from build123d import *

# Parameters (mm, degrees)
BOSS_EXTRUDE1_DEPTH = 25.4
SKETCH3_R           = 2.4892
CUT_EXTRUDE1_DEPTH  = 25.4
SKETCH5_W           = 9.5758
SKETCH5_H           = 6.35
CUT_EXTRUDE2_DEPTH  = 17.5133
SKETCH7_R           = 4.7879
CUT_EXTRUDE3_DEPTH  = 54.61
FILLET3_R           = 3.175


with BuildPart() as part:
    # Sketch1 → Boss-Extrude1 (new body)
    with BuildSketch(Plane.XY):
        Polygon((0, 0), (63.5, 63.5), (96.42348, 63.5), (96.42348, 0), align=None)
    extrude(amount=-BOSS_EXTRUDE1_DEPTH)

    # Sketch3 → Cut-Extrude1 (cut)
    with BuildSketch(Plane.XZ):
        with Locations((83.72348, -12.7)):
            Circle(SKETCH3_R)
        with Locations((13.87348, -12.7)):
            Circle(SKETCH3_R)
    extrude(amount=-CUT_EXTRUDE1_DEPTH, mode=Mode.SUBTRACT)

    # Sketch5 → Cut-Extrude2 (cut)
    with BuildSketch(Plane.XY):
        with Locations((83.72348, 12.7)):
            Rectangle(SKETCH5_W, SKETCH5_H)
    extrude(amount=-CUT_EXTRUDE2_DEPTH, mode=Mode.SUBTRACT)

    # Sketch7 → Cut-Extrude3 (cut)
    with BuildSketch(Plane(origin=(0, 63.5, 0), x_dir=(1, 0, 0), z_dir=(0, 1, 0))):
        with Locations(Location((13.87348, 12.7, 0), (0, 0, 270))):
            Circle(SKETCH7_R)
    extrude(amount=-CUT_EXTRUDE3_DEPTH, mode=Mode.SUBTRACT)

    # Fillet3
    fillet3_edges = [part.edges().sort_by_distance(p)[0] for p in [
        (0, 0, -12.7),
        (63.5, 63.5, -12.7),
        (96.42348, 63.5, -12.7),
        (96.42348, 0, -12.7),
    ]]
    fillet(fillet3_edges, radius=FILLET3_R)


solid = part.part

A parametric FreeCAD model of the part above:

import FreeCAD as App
import Part
import Sketcher
from FreeCAD import Vector
Q = App.Units.Quantity


def edges_at(feature, points):
    """Names of the edges that pass closest to the given points."""
    edges = feature.Shape.Edges
    near = lambda p: min(range(len(edges)), key=lambda i: edges[i].distToShape(Part.Vertex(*p))[0])
    return sorted({f"Edge{near(p) + 1}" for p in points})


def add_polygon(sketch, points):
    """Adds a closed chain of lines whose ends are joined by coincident constraints."""
    first, n = sketch.GeometryCount, len(points)
    for a, b in zip(points, points[1:] + points[:1]):
        sketch.addGeometry(Part.LineSegment(App.Vector(*a, 0), App.Vector(*b, 0)), False)
    for i in range(n):
        sketch.addConstraint(Sketcher.Constraint("Coincident", first + i, 2, first + (i + 1) % n, 1))

doc = App.newDocument("Part")
body = doc.addObject("PartDesign::Body", "Body")

sketch1 = doc.addObject("Sketcher::SketchObject", "Sketch")
body.addObject(sketch1)
sketch1.AttachmentSupport = (doc.XY_Plane, [""])
sketch1.MapMode = "FlatFace"
add_polygon(sketch1, [(63.5, 63.5), (0, 0), (96.42348, 0), (96.42348, 63.5)])
sketch1.addConstraint(Sketcher.Constraint("Horizontal", 1))
sketch1.addConstraint(Sketcher.Constraint("Vertical", 2))
sketch1.addConstraint(Sketcher.Constraint("Horizontal", 3))
sketch1.addConstraint(Sketcher.Constraint("Coincident", 0, 2, -1, 1))
sketch1.addConstraint(Sketcher.Constraint("DistanceY", 2, 1, 2, 2, Q("2.5 in")))
sketch1.addConstraint(Sketcher.Constraint("Angle", 0, Q("-135 deg")))
sketch1.addConstraint(Sketcher.Constraint("DistanceX", 1, 1, 1, 2, Q("3.7962 in")))
pad1 = doc.addObject("PartDesign::Pad", "Pad")
body.addObject(pad1)
pad1.Profile = sketch1
pad1.Length = Q("1 in")
pad1.Reversed = True

sketch2 = doc.addObject("Sketcher::SketchObject", "Sketch001")
body.addObject(sketch2)
sketch2.AttachmentSupport = (doc.XZ_Plane, [""])
sketch2.MapMode = "FlatFace"
sketch2.addGeometry(Part.Circle(Vector(83.72348, -12.7, 0), Vector(0, 0, 1), 2.4892), False)
sketch2.addGeometry(Part.Circle(Vector(13.87348, -12.7, 0), Vector(0, 0, 1), 2.4892), False)
sketch2.addConstraint(Sketcher.Constraint("Equal", 0, 1))
sketch2.addConstraint(Sketcher.Constraint("Horizontal", 0, 3, 1, 3))
sketch2.addConstraint(Sketcher.Constraint("Diameter", 0, Q("0.196 in")))
sketch2.addConstraint(Sketcher.Constraint("DistanceY", 0, 3, -1, 1, Q("0.5 in")))
sketch2.addConstraint(Sketcher.Constraint("DistanceX", 1, 3, 0, 3, Q("2.75 in")))
sketch2.addConstraint(Sketcher.Constraint("DistanceX", -1, 1, 0, 3, Q("3.2962 in")))
pocket1 = doc.addObject("PartDesign::Pocket", "Pocket")
body.addObject(pocket1)
pocket1.Profile = sketch2
pocket1.Length = Q("1 in")

sketch3 = doc.addObject("Sketcher::SketchObject", "Sketch002")
body.addObject(sketch3)
sketch3.AttachmentSupport = (doc.XY_Plane, [""])
sketch3.MapMode = "FlatFace"
add_polygon(sketch3, [(78.93558, 15.875), (78.93558, 9.525), (88.51138, 9.525), (88.51138, 15.875)])
sketch3.addConstraint(Sketcher.Constraint("Vertical", 0))
sketch3.addConstraint(Sketcher.Constraint("Horizontal", 1))
sketch3.addConstraint(Sketcher.Constraint("Vertical", 2))
sketch3.addConstraint(Sketcher.Constraint("Horizontal", 3))
sketch3.addConstraint(Sketcher.Constraint("DistanceY", 0, 2, 0, 1, Q("0.25 in")))
sketch3.addConstraint(Sketcher.Constraint("DistanceX", 1, 1, 1, 2, Q("0.377 in")))
sketch3.addConstraint(Sketcher.Constraint("DistanceY", -1, 1, 0, 2, Q("0.375 in")))
sketch3.addConstraint(Sketcher.Constraint("DistanceX", -1, 1, 0, 2, Q("3.1077 in")))
pocket2 = doc.addObject("PartDesign::Pocket", "Pocket001")
body.addObject(pocket2)
pocket2.Profile = sketch3
pocket2.Length = Q("0.6895 in")

sketch4 = doc.addObject("Sketcher::SketchObject", "Sketch003")
body.addObject(sketch4)
sketch4.AttachmentSupport = (doc.XZ_Plane, [""])
sketch4.MapMode = "FlatFace"
sketch4.AttachmentOffset = App.Placement(Vector(0, 0, -2.5 * 25.4), App.Rotation())
sketch4.addGeometry(Part.Circle(Vector(13.87348, -12.7, 0), Vector(0, 0, 1), 4.7879), False)
sketch4.addConstraint(Sketcher.Constraint("Diameter", 0, Q("0.377 in")))
sketch4.addConstraint(Sketcher.Constraint("DistanceY", 0, 3, -1, 1, Q("0.5 in")))
sketch4.addConstraint(Sketcher.Constraint("DistanceX", -1, 1, 0, 3, Q("0.5462 in")))
pocket3 = doc.addObject("PartDesign::Pocket", "Pocket002")
body.addObject(pocket3)
pocket3.Profile = sketch4
pocket3.Length = Q("2.15 in")
pocket3.Reversed = True
doc.recompute()

fillet = doc.addObject("PartDesign::Fillet", "Fillet")
body.addObject(fillet)
fillet.Base = (pocket3, edges_at(pocket3, [
    (0, 0, -12.7),
    (63.5, 63.5, -12.7),
    (96.423, 63.5, -12.7),
    (96.423, 0, -12.7),
]))
fillet.Radius = Q("0.125 in")

doc.recompute()
